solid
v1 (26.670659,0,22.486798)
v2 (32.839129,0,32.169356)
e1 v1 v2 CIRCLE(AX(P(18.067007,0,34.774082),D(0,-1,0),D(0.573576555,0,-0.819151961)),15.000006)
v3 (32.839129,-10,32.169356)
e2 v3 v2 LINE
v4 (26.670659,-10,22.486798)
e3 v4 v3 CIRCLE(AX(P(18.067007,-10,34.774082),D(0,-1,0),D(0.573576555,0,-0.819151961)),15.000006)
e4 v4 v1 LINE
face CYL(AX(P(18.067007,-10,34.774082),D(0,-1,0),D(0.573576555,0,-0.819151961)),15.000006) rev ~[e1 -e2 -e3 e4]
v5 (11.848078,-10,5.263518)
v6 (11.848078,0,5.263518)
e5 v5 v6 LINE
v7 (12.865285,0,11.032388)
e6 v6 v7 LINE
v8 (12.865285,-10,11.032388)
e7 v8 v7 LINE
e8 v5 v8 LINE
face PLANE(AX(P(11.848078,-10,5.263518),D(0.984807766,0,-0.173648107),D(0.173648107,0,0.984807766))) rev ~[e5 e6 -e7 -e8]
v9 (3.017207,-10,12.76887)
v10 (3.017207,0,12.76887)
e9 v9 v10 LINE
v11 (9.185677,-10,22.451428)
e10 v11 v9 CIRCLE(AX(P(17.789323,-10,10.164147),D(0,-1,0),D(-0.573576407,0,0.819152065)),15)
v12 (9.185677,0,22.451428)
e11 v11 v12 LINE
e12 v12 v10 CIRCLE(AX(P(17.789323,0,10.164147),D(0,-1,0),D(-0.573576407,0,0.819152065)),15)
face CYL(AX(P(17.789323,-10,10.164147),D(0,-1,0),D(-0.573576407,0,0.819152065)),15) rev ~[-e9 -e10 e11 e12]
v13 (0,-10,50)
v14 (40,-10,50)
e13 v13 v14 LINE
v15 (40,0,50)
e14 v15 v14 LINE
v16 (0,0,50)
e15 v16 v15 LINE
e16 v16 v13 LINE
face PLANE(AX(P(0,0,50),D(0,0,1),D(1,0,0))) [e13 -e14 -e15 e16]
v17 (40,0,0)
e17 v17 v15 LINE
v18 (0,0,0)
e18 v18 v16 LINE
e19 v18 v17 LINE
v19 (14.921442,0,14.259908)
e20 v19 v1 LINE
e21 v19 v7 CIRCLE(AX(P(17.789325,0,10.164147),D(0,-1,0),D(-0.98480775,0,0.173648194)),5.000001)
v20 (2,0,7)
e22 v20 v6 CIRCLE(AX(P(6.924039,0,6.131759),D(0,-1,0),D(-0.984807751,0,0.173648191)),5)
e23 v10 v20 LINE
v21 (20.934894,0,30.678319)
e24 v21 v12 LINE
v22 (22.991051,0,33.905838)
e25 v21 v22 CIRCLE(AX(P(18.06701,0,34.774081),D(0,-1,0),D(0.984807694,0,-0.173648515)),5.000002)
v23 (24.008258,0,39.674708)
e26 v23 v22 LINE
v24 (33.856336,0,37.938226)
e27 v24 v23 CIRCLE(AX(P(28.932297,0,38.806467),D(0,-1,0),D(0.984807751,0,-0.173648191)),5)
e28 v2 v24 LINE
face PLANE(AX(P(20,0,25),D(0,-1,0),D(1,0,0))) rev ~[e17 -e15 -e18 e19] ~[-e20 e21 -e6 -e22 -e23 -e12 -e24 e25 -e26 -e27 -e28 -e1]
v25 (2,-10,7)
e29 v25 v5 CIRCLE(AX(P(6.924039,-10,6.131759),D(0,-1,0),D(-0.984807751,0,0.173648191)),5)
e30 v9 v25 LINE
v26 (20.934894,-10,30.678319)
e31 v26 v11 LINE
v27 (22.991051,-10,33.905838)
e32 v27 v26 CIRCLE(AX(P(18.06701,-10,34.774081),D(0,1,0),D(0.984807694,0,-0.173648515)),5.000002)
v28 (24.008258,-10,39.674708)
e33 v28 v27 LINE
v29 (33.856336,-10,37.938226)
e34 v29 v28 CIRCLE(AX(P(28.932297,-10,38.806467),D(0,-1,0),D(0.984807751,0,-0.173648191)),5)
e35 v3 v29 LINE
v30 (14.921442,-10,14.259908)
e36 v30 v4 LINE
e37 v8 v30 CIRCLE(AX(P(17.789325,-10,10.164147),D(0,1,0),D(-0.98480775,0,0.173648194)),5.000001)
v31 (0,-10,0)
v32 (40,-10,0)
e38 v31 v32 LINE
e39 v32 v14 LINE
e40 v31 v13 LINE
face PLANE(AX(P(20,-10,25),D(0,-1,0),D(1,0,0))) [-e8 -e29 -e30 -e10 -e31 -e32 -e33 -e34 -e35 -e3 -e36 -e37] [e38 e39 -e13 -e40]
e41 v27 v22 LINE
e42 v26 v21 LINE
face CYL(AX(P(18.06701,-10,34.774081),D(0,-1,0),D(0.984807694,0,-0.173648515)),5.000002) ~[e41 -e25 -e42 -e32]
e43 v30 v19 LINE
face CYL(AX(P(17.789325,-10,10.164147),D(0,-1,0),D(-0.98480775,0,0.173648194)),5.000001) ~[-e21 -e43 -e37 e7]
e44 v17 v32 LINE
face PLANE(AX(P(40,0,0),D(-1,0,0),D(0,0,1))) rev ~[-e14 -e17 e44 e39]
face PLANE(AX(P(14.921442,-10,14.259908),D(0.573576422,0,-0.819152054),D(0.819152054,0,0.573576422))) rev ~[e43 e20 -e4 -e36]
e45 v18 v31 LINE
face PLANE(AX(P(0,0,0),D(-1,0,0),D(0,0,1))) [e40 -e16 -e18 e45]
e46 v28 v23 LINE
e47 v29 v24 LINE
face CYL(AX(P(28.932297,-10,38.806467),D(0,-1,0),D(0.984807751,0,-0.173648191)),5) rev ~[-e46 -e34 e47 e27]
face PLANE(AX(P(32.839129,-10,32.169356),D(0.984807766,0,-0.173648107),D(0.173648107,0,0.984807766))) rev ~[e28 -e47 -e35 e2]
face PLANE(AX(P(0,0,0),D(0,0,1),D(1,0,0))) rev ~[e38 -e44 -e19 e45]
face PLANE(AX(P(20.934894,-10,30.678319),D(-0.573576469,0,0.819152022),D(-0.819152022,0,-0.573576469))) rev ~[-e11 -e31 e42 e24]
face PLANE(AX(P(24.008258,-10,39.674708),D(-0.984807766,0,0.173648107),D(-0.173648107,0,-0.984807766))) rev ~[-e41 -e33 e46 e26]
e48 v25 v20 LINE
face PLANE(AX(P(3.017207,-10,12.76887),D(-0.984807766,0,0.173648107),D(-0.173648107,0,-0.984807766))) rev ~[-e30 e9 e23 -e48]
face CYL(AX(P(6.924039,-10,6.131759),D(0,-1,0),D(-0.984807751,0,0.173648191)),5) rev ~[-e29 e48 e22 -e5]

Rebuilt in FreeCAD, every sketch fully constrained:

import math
import FreeCAD as App
import Part
import Sketcher

V = App.Vector
Q = App.Units.Quantity


def add_polygon(sketch, points):
    """Adds a closed chain of lines whose ends are joined by coincident constraints."""
    first, n = sketch.GeometryCount, len(points)
    for a, b in zip(points, points[1:] + points[:1]):
        sketch.addGeometry(Part.LineSegment(App.Vector(*a, 0), App.Vector(*b, 0)), False)
    for i in range(n):
        sketch.addConstraint(Sketcher.Constraint("Coincident", first + i, 2, first + (i + 1) % n, 1))

doc = App.newDocument("Part")
body = doc.addObject("PartDesign::Body", "Body")

# Sketch on XZ plane
sketch1 = body.newObject("Sketcher::SketchObject", "Sketch")
sketch1.AttachmentSupport = (doc.getObject("XZ_Plane"), [""])
sketch1.MapMode = "FlatFace"
add_polygon(sketch1, [(0, 50), (0, 0), (40, 0), (40, 50)])  # lines 0-3
sketch1.addConstraint([
    Sketcher.Constraint("Vertical", 0),
    Sketcher.Constraint("Horizontal", 1),
    Sketcher.Constraint("Vertical", 2),
    Sketcher.Constraint("Horizontal", 3),
    Sketcher.Constraint("Coincident", 0, 2, -1, 1),
    Sketcher.Constraint("DistanceX", 1, 1, 1, 2, 40.0),
    Sketcher.Constraint("DistanceY", 0, 2, 0, 1, 50.0),
])
pad1 = body.newObject("PartDesign::Pad", "Pad")
pad1.Profile = sketch1
pad1.Length = 10

# Sketch on XZ plane
sketch2 = body.newObject("Sketcher::SketchObject", "Sketch001")
sketch2.AttachmentSupport = (doc.getObject("XZ_Plane"), [""])
sketch2.MapMode = "FlatFace"
sketch2.AttachmentOffset = App.Placement(V(0, 0, 10), App.Rotation())
sketch2.addGeometry([
    Part.LineSegment(V(3, 12.8, 0), V(2, 7, 0)),  # 0
    Part.ArcOfCircle(Part.Circle(V(6.9, 6.1, 0), V(0, 0, 1), 5), math.radians(170), math.radians(350)),  # 1
    Part.LineSegment(V(11.8, 5.3, 0), V(12.9, 11, 0)),  # 2
    Part.ArcOfCircle(Part.Circle(V(17.8, 10.2, 0), V(0, 0, 1), 5), math.radians(125), math.radians(170)),  # 3
    Part.LineSegment(V(14.9, 14.3, 0), V(26.7, 22.5, 0)),  # 4
    Part.ArcOfCircle(Part.Circle(V(18.1, 34.8, 0), V(0, 0, 1), 15), math.radians(-55), math.radians(-10)),  # 5
    Part.LineSegment(V(32.8, 32.2, 0), V(33.9, 37.9, 0)),  # 6
    Part.ArcOfCircle(Part.Circle(V(28.9, 38.8, 0), V(0, 0, 1), 5), math.radians(-10), math.radians(170)),  # 7
    Part.LineSegment(V(24, 39.7, 0), V(23, 33.9, 0)),  # 8
    Part.ArcOfCircle(Part.Circle(V(18.1, 34.8, 0), V(0, 0, 1), 5), math.radians(-55), math.radians(-10)),  # 9
    Part.LineSegment(V(20.9, 30.7, 0), V(9.2, 22.5, 0)),  # 10
    Part.ArcOfCircle(Part.Circle(V(17.8, 10.2, 0), V(0, 0, 1), 15), math.radians(125), math.radians(170)),  # 11
], False)
sketch2.addConstraint([
    Sketcher.Constraint("Tangent", 0, 2, 1, 1),
    Sketcher.Constraint("Tangent", 1, 2, 2, 1),
    Sketcher.Constraint("Tangent", 2, 2, 3, 2),
    Sketcher.Constraint("Tangent", 3, 1, 4, 1),
    Sketcher.Constraint("Tangent", 4, 2, 5, 1),
    Sketcher.Constraint("Tangent", 5, 2, 6, 1),
    Sketcher.Constraint("Tangent", 6, 2, 7, 1),
    Sketcher.Constraint("Tangent", 7, 2, 8, 1),
    Sketcher.Constraint("Tangent", 8, 2, 9, 2),
    Sketcher.Constraint("Tangent", 9, 1, 10, 1),
    Sketcher.Constraint("Tangent", 10, 2, 11, 1),
    Sketcher.Constraint("Tangent", 11, 2, 0, 1),
    Sketcher.Constraint("Coincident", 9, 3, 5, 3),
    Sketcher.Constraint("Coincident", 11, 3, 3, 3),
    Sketcher.Constraint("Equal", 1, 3),
    Sketcher.Constraint("Equal", 3, 7),
    Sketcher.Constraint("Equal", 3, 9),
    Sketcher.Constraint("Parallel", 0, 2),
    Sketcher.Constraint("Parallel", 2, 6),
    Sketcher.Constraint("Parallel", 6, 8),
    Sketcher.Constraint("Equal", 2, 6),
    Sketcher.Constraint("Radius", 1, 5.0),
    Sketcher.Constraint("Angle", 0, Q("-99.999996 deg")),
    Sketcher.Constraint("Angle", 4, Q("34.999999 deg")),
    Sketcher.Constraint("DistanceX", -1, 1, 0, 2, 2.0),
    Sketcher.Constraint("DistanceY", -1, 1, 0, 2, 7.0),
    Sketcher.Constraint("DistanceY", -1, 1, 4, 2, 22.486798),
    Sketcher.Constraint("DistanceX", -1, 1, 9, 3, 18.06701),
])
pocket1 = body.newObject("PartDesign::Pocket", "Pocket")
pocket1.Profile = sketch2
pocket1.Type = "ThroughAll"

doc.recompute()
